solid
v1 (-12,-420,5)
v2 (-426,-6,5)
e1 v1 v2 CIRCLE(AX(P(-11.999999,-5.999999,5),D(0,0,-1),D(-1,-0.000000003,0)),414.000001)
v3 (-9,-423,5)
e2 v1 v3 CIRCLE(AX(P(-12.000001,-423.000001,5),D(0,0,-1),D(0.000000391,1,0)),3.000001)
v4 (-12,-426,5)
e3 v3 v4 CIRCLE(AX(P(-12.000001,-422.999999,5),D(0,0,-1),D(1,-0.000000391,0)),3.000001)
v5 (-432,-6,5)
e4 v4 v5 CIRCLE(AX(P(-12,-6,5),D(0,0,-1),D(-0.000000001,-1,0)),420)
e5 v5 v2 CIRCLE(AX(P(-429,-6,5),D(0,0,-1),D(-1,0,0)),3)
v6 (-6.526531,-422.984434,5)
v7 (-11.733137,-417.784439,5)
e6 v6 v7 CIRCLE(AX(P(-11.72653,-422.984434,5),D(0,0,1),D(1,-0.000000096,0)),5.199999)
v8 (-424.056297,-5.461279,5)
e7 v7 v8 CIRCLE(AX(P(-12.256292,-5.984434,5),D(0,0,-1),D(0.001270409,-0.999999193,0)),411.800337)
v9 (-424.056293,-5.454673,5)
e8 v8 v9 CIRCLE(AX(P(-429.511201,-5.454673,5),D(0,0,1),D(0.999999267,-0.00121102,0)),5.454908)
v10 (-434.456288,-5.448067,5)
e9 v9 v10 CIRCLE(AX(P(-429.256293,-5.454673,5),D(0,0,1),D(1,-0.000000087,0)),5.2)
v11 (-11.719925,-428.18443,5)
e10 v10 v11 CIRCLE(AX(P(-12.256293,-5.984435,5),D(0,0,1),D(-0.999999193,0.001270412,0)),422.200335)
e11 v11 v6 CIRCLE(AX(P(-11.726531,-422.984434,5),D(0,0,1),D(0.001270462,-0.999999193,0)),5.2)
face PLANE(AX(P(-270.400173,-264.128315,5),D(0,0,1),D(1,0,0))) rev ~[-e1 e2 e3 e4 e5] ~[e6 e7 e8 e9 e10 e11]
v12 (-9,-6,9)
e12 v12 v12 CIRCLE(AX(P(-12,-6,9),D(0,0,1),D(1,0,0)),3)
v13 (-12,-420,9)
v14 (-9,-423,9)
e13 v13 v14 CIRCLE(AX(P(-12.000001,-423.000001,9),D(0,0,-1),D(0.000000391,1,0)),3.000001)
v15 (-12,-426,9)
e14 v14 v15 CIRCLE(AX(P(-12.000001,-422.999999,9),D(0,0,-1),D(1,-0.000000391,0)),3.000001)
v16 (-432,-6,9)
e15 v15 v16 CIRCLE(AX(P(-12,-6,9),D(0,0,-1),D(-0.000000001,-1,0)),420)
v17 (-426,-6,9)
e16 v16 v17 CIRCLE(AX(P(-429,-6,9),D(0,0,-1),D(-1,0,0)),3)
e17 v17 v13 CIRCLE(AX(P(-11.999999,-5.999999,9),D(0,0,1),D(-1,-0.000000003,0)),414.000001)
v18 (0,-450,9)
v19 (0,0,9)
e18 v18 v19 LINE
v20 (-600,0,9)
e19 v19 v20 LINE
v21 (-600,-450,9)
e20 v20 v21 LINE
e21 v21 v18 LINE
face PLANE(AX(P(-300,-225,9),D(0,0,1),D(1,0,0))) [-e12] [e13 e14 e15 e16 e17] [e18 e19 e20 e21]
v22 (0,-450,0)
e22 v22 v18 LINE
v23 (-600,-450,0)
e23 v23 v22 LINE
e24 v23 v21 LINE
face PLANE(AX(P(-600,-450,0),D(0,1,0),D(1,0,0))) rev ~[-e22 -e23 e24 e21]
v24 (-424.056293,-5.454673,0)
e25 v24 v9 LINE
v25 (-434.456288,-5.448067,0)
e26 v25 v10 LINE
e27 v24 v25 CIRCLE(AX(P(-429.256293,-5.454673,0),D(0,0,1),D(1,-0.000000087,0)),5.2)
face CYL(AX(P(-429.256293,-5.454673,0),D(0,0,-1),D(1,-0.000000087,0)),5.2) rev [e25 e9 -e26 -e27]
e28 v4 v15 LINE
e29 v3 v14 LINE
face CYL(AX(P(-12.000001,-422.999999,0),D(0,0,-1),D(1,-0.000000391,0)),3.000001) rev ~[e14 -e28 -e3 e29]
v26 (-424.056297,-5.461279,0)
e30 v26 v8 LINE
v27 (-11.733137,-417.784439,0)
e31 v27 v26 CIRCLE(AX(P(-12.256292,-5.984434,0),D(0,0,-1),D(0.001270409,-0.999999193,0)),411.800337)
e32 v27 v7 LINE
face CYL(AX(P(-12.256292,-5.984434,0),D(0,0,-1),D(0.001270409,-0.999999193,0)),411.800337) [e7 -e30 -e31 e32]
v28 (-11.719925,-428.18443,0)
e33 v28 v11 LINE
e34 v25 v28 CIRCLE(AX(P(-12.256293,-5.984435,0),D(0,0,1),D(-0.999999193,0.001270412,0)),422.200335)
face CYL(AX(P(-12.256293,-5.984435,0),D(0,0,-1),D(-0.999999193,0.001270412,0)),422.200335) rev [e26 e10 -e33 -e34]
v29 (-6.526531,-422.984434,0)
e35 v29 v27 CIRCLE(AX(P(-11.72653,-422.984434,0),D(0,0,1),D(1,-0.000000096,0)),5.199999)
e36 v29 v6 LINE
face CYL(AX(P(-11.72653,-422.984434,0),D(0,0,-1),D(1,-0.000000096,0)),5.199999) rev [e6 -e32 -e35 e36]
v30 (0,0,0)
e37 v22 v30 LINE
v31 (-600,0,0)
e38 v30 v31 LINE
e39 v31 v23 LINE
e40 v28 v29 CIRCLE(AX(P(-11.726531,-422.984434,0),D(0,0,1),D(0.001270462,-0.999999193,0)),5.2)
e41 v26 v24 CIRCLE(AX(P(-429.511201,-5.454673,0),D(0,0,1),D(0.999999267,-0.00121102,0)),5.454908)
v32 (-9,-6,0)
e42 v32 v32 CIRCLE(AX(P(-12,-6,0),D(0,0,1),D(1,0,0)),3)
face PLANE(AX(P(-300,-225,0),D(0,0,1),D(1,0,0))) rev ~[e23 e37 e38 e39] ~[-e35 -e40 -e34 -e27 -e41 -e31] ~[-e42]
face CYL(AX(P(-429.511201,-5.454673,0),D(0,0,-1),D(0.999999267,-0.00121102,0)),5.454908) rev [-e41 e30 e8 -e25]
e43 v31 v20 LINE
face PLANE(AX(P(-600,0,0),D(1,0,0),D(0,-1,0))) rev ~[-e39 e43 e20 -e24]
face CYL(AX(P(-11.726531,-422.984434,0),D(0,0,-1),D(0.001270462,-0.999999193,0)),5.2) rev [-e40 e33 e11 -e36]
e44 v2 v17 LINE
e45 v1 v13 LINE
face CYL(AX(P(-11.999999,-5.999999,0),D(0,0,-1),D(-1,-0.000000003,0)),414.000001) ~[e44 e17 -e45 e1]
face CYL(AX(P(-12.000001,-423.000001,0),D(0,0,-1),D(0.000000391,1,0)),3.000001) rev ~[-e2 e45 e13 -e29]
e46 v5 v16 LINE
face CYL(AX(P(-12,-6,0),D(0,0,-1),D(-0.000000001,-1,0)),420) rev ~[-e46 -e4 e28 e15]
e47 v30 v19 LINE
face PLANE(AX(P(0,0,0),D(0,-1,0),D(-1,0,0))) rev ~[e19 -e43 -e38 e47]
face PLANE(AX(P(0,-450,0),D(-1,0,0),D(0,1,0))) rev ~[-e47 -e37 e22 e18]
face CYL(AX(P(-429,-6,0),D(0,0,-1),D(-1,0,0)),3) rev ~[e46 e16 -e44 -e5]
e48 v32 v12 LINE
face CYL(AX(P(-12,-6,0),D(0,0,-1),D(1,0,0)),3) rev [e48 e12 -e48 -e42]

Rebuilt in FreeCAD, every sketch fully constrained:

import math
import FreeCAD as App
import Part
import Sketcher
Q = App.Units.Quantity

doc = App.newDocument("Part")
params = doc.addObject("Spreadsheet::Sheet", "Params")
for row, (alias, value) in enumerate([
    ("sketch1_diameter", "6 mm"),
    ("sketch1_radius", "414.000001 mm"),
    ("sketch1_width", "600 mm"),
    ("sketch1_height", "450 mm"),
    ("pad1_length", "9 mm"),
    ("sketch2_radius", "5.2 mm"),
    ("pocket1_length", "5 mm"),
], start=1):
    params.set(f"A{row}", alias)
    params.set(f"B{row}", "=" + value)
    params.setAlias(f"B{row}", alias)

body = doc.addObject("PartDesign::Body", "Body")

sketch1 = body.newObject("Sketcher::SketchObject", "Sketch")
sketch1.AttachmentSupport = (doc.getObject("XY_Plane"), [""])
sketch1.MapMode = "FlatFace"
sketch1.addGeometry([
    Part.LineSegment(App.Vector(0, -450, 0), App.Vector(0, 0, 0)),
    Part.LineSegment(App.Vector(0, 0, 0), App.Vector(-600, 0, 0)),
    Part.LineSegment(App.Vector(-600, 0, 0), App.Vector(-600, -450, 0)),
    Part.LineSegment(App.Vector(-600, -450, 0), App.Vector(0, -450, 0)),
    Part.ArcOfCircle(Part.Circle(App.Vector(-11.999999, -5.999999, 0), App.Vector(0, 0, 1), 414.000001), math.radians(-180), math.radians(-90)),
    Part.ArcOfCircle(Part.Circle(App.Vector(-12.000001, -423.000001, 0), App.Vector(0, 0, 1), 3.000001), math.radians(0.000022), math.radians(89.999978)),
    Part.ArcOfCircle(Part.Circle(App.Vector(-12.000001, -422.999999, 0), App.Vector(0, 0, 1), 3.000001), math.radians(-89.999978), math.radians(-0.000022)),
    Part.ArcOfCircle(Part.Circle(App.Vector(-12, -6, 0), App.Vector(0, 0, 1), 420), math.radians(-180), math.radians(-90)),
    Part.ArcOfCircle(Part.Circle(App.Vector(-429, -6, 0), App.Vector(0, 0, 1), 3), math.radians(0), math.radians(180)),
    Part.Circle(App.Vector(-12, -6, 0), App.Vector(0, 0, 1), 3),
], False)
sketch1.addConstraint([
    Sketcher.Constraint("Coincident", 0, 2, 1, 1),
    Sketcher.Constraint("Coincident", 1, 2, 2, 1),
    Sketcher.Constraint("Coincident", 2, 2, 3, 1),
    Sketcher.Constraint("Coincident", 3, 2, 0, 1),
    Sketcher.Constraint("Tangent", 4, 2, 5, 2),
    Sketcher.Constraint("Tangent", 5, 1, 6, 2),
    Sketcher.Constraint("Tangent", 6, 1, 7, 2),
    Sketcher.Constraint("Tangent", 7, 1, 8, 2),
    Sketcher.Constraint("Tangent", 8, 1, 4, 1),
    Sketcher.Constraint("Vertical", 0),
    Sketcher.Constraint("Horizontal", 1),
    Sketcher.Constraint("Vertical", 2),
    Sketcher.Constraint("Horizontal", 3),
    Sketcher.Constraint("Coincident", 0, 2, -1, 1),
    Sketcher.Constraint("Coincident", 7, 3, 4, 3),
    Sketcher.Constraint("Coincident", 9, 3, 4, 3),
    Sketcher.Constraint("Equal", 5, 6),
    Sketcher.Constraint("Equal", 8, 9),
    Sketcher.Constraint("Horizontal", 7, 3, 8, 3),
    Sketcher.Constraint("Horizontal", 6, 3, 5, 1),
    Sketcher.Constraint("Vertical", 6, 3, 7, 3),
    Sketcher.Constraint("Diameter", 9, Q("6 mm")),
    Sketcher.Constraint("Radius", 4, Q("414.000001 mm")),
    Sketcher.Constraint("DistanceX", 1, 2, 1, 1, Q("600 mm")),
    Sketcher.Constraint("DistanceY", 0, 1, 0, 2, Q("450 mm")),
    Sketcher.Constraint("DistanceX", 4, 3, -1, 1, Q("11.999999 mm")),
    Sketcher.Constraint("DistanceY", 4, 3, -1, 1, Q("5.999999 mm")),
])
sketch1.setExpression("Constraints[21]", "Params.sketch1_diameter")
sketch1.setExpression("Constraints[22]", "Params.sketch1_radius")
sketch1.setExpression("Constraints[23]", "Params.sketch1_width")
sketch1.setExpression("Constraints[24]", "Params.sketch1_height")
pad1 = body.newObject("PartDesign::Pad", "Pad")
pad1.Profile = sketch1
pad1.setExpression("Length", "Params.pad1_length")

sketch2 = body.newObject("Sketcher::SketchObject", "Sketch001")
sketch2.AttachmentSupport = (doc.getObject("XY_Plane"), [""])
sketch2.MapMode = "FlatFace"
sketch2.addGeometry([
    Part.ArcOfCircle(Part.Circle(App.Vector(-12.256293, -5.984435, 0), App.Vector(0, 0, 1), 422.200335), math.radians(179.927211), math.radians(270.072789)),
    Part.ArcOfCircle(Part.Circle(App.Vector(-11.726531, -422.984434, 0), App.Vector(0, 0, 1), 5.2), math.radians(-89.927208), math.radians(-0.000002)),
    Part.ArcOfCircle(Part.Circle(App.Vector(-11.72653, -422.984434, 0), App.Vector(0, 0, 1), 5.199999), math.radians(-0.000005), math.radians(90.072802)),
    Part.ArcOfCircle(Part.Circle(App.Vector(-12.256292, -5.984434, 0), App.Vector(0, 0, 1), 411.800337), math.radians(179.927211), math.radians(270.072789)),
    Part.ArcOfCircle(Part.Circle(App.Vector(-429.511201, -5.454673, 0), App.Vector(0, 0, 1), 5.454908), math.radians(-0.069386), math.radians(0)),
    Part.ArcOfCircle(Part.Circle(App.Vector(-429.256293, -5.454673, 0), App.Vector(0, 0, 1), 5.2), math.radians(-0.000005), math.radians(179.927217)),
], False)
sketch2.addConstraint([
    Sketcher.Constraint("Tangent", 0, 2, 1, 1),
    Sketcher.Constraint("Tangent", 1, 2, 2, 1),
    Sketcher.Constraint("Tangent", 2, 2, 3, 2),
    Sketcher.Constraint("Coincident", 3, 1, 4, 1),
    Sketcher.Constraint("Tangent", 4, 2, 5, 1),
    Sketcher.Constraint("Tangent", 5, 2, 0, 1),
    Sketcher.Constraint("Coincident", 3, 3, 0, 3),
    Sketcher.Constraint("Equal", 1, 2),
    Sketcher.Constraint("Horizontal", 4, 3, 5, 3),
    Sketcher.Constraint("Horizontal", 2, 3, 1, 2),
    Sketcher.Constraint("Radius", 1, Q("5.2 mm")),
    Sketcher.Constraint("DistanceY", 1, 3, 0, 3, Q("416.999998 mm")),
    Sketcher.Constraint("Radius", 4, Q("5.454908 mm")),
    Sketcher.Constraint("DistanceX", 4, 3, -1, 1, Q("429.511201 mm")),
    Sketcher.Constraint("DistanceX", 1, 3, -1, 1, Q("11.726531 mm")),
    Sketcher.Constraint("DistanceY", 0, 2, -1, 1, Q("428.18443 mm")),
    Sketcher.Constraint("DistanceY", 3, 1, -1, 1, Q("5.461279 mm")),
    Sketcher.Constraint("DistanceY", 3, 3, 4, 3, Q("0.529761 mm")),
])
sketch2.setExpression("Constraints[10]", "Params.sketch2_radius")
pocket1 = body.newObject("PartDesign::Pocket", "Pocket")
pocket1.Profile = sketch2
pocket1.setExpression("Length", "Params.pocket1_length")
pocket1.Reversed = True

doc.recompute()
